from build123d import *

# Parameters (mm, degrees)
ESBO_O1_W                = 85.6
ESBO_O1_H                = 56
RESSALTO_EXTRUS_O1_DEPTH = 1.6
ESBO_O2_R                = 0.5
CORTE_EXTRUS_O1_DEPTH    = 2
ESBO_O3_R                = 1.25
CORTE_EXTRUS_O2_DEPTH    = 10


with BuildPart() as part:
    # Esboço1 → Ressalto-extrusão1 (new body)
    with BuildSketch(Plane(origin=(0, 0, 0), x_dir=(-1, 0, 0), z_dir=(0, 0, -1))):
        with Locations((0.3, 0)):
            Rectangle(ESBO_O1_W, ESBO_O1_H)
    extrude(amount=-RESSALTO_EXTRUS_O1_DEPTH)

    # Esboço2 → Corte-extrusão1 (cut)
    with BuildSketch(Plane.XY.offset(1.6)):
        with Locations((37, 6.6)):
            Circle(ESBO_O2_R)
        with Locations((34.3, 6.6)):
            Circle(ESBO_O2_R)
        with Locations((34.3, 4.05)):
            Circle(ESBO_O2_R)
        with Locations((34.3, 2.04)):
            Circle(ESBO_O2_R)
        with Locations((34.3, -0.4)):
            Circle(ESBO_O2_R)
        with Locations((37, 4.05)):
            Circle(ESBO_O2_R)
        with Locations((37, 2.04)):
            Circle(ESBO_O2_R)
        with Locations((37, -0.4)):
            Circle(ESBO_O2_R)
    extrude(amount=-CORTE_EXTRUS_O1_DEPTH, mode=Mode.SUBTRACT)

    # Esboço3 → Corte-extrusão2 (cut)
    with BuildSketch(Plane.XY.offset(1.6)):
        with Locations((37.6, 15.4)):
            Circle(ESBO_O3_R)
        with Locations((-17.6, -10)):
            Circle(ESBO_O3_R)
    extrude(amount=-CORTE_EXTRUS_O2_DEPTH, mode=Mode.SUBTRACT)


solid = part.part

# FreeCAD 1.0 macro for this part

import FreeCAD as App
import Part
import Sketcher

V = App.Vector
Q = App.Units.Quantity

doc = App.newDocument("Part")
body = doc.addObject("PartDesign::Body", "Body")

# Sketch on XY plane
sketch1 = body.newObject("Sketcher::SketchObject", "Sketch")
sketch1.AttachmentSupport = (doc.getObject("XY_Plane"), [""])
sketch1.MapMode = "FlatFace"
sketch1.addGeometry([
    Part.LineSegment(V(42, 28, 0), V(42, -28, 0)),
    Part.LineSegment(V(42, -28, 0), V(-43, -28, 0)),
    Part.LineSegment(V(-43, -28, 0), V(-43, 28, 0)),
    Part.LineSegment(V(-43, 28, 0), V(42, 28, 0)),
], False)
sketch1.addConstraint([
    Sketcher.Constraint("Coincident", 0, 2, 1, 1),
    Sketcher.Constraint("Coincident", 1, 2, 2, 1),
    Sketcher.Constraint("Coincident", 2, 2, 3, 1),
    Sketcher.Constraint("Coincident", 3, 2, 0, 1),
    Sketcher.Constraint("Vertical", 0),
    Sketcher.Constraint("Horizontal", 1),
    Sketcher.Constraint("Vertical", 2),
    Sketcher.Constraint("Horizontal", 3),
    Sketcher.Constraint("DistanceY", 0, 2, 0, 1, Q("56 mm")),
    Sketcher.Constraint("DistanceX", 1, 2, 1, 1, Q("85.6 mm")),
    Sketcher.Constraint("DistanceY", 0, 2, -1, 1, Q("28 mm")),
    Sketcher.Constraint("DistanceX", -1, 1, 0, 2, Q("42.5 mm")),
])
pad1 = body.newObject("PartDesign::Pad", "Pad")
pad1.Profile = sketch1
pad1.Length = 1.6

# Sketch on XY plane
sketch2 = body.newObject("Sketcher::SketchObject", "Sketch001")
sketch2.AttachmentSupport = (doc.getObject("XY_Plane"), [""])
sketch2.MapMode = "FlatFace"
sketch2.AttachmentOffset = App.Placement(V(0, 0, 1.6), App.Rotation())
sketch2.addGeometry([
    Part.Circle(V(37, 6.6, 0), V(0, 0, 1), 0.5),  # 0
    Part.Circle(V(34.3, 6.6, 0), V(0, 0, 1), 0.5),  # 1
    Part.Circle(V(34.3, 4, 0), V(0, 0, 1), 0.5),  # 2
    Part.Circle(V(34.3, 2, 0), V(0, 0, 1), 0.5),  # 3
    Part.Circle(V(34.3, -0.4, 0), V(0, 0, 1), 0.5),  # 4
    Part.Circle(V(37, 4, 0), V(0, 0, 1), 0.5),  # 5
    Part.Circle(V(37, 2, 0), V(0, 0, 1), 0.5),  # 6
    Part.Circle(V(37, -0.4, 0), V(0, 0, 1), 0.5),  # 7
], False)
sketch2.addConstraint([
    Sketcher.Constraint("Equal", 0, 1),
    Sketcher.Constraint("Equal", 1, 2),
    Sketcher.Constraint("Equal", 2, 3),
    Sketcher.Constraint("Equal", 3, 4),
    Sketcher.Constraint("Equal", 4, 5),
    Sketcher.Constraint("Equal", 5, 6),
    Sketcher.Constraint("Equal", 6, 7),
    Sketcher.Constraint("Horizontal", 0, 3, 1, 3),
    Sketcher.Constraint("Horizontal", 2, 3, 5, 3),
    Sketcher.Constraint("Horizontal", 3, 3, 6, 3),
    Sketcher.Constraint("Horizontal", 4, 3, 7, 3),
    Sketcher.Constraint("Vertical", 1, 3, 2, 3),
    Sketcher.Constraint("Vertical", 2, 3, 3, 3),
    Sketcher.Constraint("Vertical", 3, 3, 4, 3),
    Sketcher.Constraint("Vertical", 0, 3, 5, 3),
    Sketcher.Constraint("Vertical", 5, 3, 6, 3),
    Sketcher.Constraint("Vertical", 6, 3, 7, 3),
    Sketcher.Constraint("Diameter", 0, Q("1 mm")),
    Sketcher.Constraint("DistanceX", -1, 1, 0, 3, Q("37 mm")),
    Sketcher.Constraint("DistanceY", 4, 3, 1, 3, Q("7 mm")),
    Sketcher.Constraint("DistanceY", -1, 1, 0, 3, Q("6.6 mm")),
    Sketcher.Constraint("DistanceX", -1, 1, 1, 3, Q("34.3 mm")),
    Sketcher.Constraint("DistanceY", -1, 1, 2, 3, Q("4.05 mm")),
    Sketcher.Constraint("DistanceY", -1, 1, 3, 3, Q("2.04 mm")),
])
pocket1 = body.newObject("PartDesign::Pocket", "Pocket")
pocket1.Profile = sketch2
pocket1.Length = 2

# Sketch on XY plane
sketch3 = body.newObject("Sketcher::SketchObject", "Sketch002")
sketch3.AttachmentSupport = (doc.getObject("XY_Plane"), [""])
sketch3.MapMode = "FlatFace"
sketch3.AttachmentOffset = App.Placement(V(0, 0, 1.6), App.Rotation())
sketch3.addGeometry([
    Part.Circle(V(37.6, 15.4, 0), V(0, 0, 1), 1.2),
    Part.Circle(V(-17.6, -10, 0), V(0, 0, 1), 1.2),
], False)
sketch3.addConstraint([
    Sketcher.Constraint("Equal", 0, 1),
    Sketcher.Constraint("Diameter", 0, Q("2.5 mm")),
    Sketcher.Constraint("DistanceY", 1, 3, -1, 1, Q("10 mm")),
    Sketcher.Constraint("DistanceX", -1, 1, 0, 3, Q("37.6 mm")),
    Sketcher.Constraint("DistanceY", -1, 1, 0, 3, Q("15.4 mm")),
    Sketcher.Constraint("DistanceX", 1, 3, -1, 1, Q("17.6 mm")),
])
pocket2 = body.newObject("PartDesign::Pocket", "Pocket001")
pocket2.Profile = sketch3
pocket2.Length = 10

doc.recompute()
